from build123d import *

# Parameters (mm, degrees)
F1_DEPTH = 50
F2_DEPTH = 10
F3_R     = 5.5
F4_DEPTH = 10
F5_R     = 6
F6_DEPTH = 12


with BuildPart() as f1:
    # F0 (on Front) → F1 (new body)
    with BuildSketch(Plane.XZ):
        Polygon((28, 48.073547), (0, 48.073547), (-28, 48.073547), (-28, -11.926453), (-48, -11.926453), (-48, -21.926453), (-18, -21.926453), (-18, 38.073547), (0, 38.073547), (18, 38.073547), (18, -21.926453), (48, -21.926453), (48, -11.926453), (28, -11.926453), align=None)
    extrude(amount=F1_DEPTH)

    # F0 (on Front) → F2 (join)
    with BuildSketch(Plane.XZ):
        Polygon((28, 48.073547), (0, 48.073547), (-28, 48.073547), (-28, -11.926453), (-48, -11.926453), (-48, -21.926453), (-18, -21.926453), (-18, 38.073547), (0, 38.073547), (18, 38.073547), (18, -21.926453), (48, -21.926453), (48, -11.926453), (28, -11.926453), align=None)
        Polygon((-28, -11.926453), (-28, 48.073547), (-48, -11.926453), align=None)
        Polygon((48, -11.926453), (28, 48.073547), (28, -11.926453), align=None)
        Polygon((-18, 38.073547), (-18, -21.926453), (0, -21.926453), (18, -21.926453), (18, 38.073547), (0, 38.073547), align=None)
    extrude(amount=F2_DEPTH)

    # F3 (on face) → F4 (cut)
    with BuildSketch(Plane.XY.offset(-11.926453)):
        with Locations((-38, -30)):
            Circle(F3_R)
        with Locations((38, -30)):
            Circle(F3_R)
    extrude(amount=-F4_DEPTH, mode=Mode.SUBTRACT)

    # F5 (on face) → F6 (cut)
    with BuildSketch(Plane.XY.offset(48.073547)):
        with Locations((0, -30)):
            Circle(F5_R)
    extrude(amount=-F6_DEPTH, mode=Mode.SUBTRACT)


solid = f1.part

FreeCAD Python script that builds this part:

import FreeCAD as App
import Part
import Sketcher
from FreeCAD import Vector


def add_polygon(sketch, points):
    """Adds a closed chain of lines whose ends are joined by coincident constraints."""
    first, n = sketch.GeometryCount, len(points)
    for a, b in zip(points, points[1:] + points[:1]):
        sketch.addGeometry(Part.LineSegment(App.Vector(*a, 0), App.Vector(*b, 0)), False)
    for i in range(n):
        sketch.addConstraint(Sketcher.Constraint("Coincident", first + i, 2, first + (i + 1) % n, 1))

doc = App.newDocument("Part")
body = doc.addObject("PartDesign::Body", "Body")

# Sketch on XZ plane
sketch1 = doc.addObject("Sketcher::SketchObject", "Sketch")
body.addObject(sketch1)
sketch1.AttachmentSupport = (doc.XZ_Plane, [""])
sketch1.MapMode = "FlatFace"
add_polygon(sketch1, [(28, 48.073547), (-28, 48.073547), (-28, -11.926453), (-48, -11.926453), (-48, -21.926453), (-18, -21.926453), (-18, 38.073547), (18, 38.073547), (18, -21.926453), (48, -21.926453), (48, -11.926453), (28, -11.926453)])  # lines 0-11
sketch1.addConstraint(Sketcher.Constraint("Horizontal", 0))
sketch1.addConstraint(Sketcher.Constraint("Vertical", 1))
sketch1.addConstraint(Sketcher.Constraint("Horizontal", 2))
sketch1.addConstraint(Sketcher.Constraint("Vertical", 3))
sketch1.addConstraint(Sketcher.Constraint("Horizontal", 4))
sketch1.addConstraint(Sketcher.Constraint("Vertical", 5))
sketch1.addConstraint(Sketcher.Constraint("Horizontal", 6))
sketch1.addConstraint(Sketcher.Constraint("Vertical", 7))
sketch1.addConstraint(Sketcher.Constraint("Horizontal", 8))
sketch1.addConstraint(Sketcher.Constraint("Vertical", 9))
sketch1.addConstraint(Sketcher.Constraint("Horizontal", 10))
sketch1.addConstraint(Sketcher.Constraint("Vertical", 11))
sketch1.addConstraint(Sketcher.Constraint("Symmetric", 4, 2, 7, 2, -2))
sketch1.addConstraint(Sketcher.Constraint("Symmetric", 2, 2, 9, 2, -2))
sketch1.addConstraint(Sketcher.Constraint("Equal", 2, 10))
sketch1.addConstraint(Sketcher.Constraint("Equal", 1, 5))
sketch1.addConstraint(Sketcher.Constraint("DistanceX", 0, 2, 0, 1, 56.0))
sketch1.addConstraint(Sketcher.Constraint("DistanceX", 2, 2, 2, 1, 20.0))
sketch1.addConstraint(Sketcher.Constraint("DistanceX", 4, 1, 4, 2, 30.0))
sketch1.addConstraint(Sketcher.Constraint("DistanceY", 1, 2, 1, 1, 60.0))
sketch1.addConstraint(Sketcher.Constraint("DistanceY", 3, 2, 3, 1, 10.0))
sketch1.addConstraint(Sketcher.Constraint("DistanceY", -1, 1, 0, 2, 48.073547))
pad1 = doc.addObject("PartDesign::Pad", "Pad")
body.addObject(pad1)
pad1.Profile = sketch1
pad1.Length = 50

# Sketch on XZ plane
sketch2 = doc.addObject("Sketcher::SketchObject", "Sketch001")
body.addObject(sketch2)
sketch2.AttachmentSupport = (doc.XZ_Plane, [""])
sketch2.MapMode = "FlatFace"
add_polygon(sketch2, [(28, 48.073547), (-28, 48.073547), (-48, -11.926453), (-48, -21.926453), (48, -21.926453), (48, -11.926453)])  # lines 0-5
sketch2.addConstraint(Sketcher.Constraint("Horizontal", 0))
sketch2.addConstraint(Sketcher.Constraint("Vertical", 2))
sketch2.addConstraint(Sketcher.Constraint("Horizontal", 3))
sketch2.addConstraint(Sketcher.Constraint("Vertical", 4))
sketch2.addConstraint(Sketcher.Constraint("Symmetric", 1, 2, 4, 2, -2))
sketch2.addConstraint(Sketcher.Constraint("Equal", 1, 5))
sketch2.addConstraint(Sketcher.Constraint("DistanceX", 0, 2, 0, 1, 56.0))
sketch2.addConstraint(Sketcher.Constraint("DistanceX", 3, 1, 3, 2, 96.0))
sketch2.addConstraint(Sketcher.Constraint("DistanceY", 2, 2, 2, 1, 10.0))
sketch2.addConstraint(Sketcher.Constraint("DistanceY", 1, 2, 0, 2, 60.0))
sketch2.addConstraint(Sketcher.Constraint("DistanceY", -1, 1, 0, 2, 48.073547))
pad2 = doc.addObject("PartDesign::Pad", "Pad001")
body.addObject(pad2)
pad2.Profile = sketch2
pad2.Length = 10

# Sketch on XY plane
sketch3 = doc.addObject("Sketcher::SketchObject", "Sketch002")
body.addObject(sketch3)
sketch3.AttachmentSupport = (doc.XY_Plane, [""])
sketch3.MapMode = "FlatFace"
sketch3.AttachmentOffset = App.Placement(Vector(0, 0, -11.926453), App.Rotation())
sketch3.addGeometry(Part.Circle(Vector(-38, -30, 0), Vector(0, 0, 1), 5.5), False)
sketch3.addGeometry(Part.Circle(Vector(38, -30, 0), Vector(0, 0, 1), 5.5), False)
sketch3.addConstraint(Sketcher.Constraint("Equal", 0, 1))
sketch3.addConstraint(Sketcher.Constraint("Symmetric", 0, 3, 1, 3, -2))
sketch3.addConstraint(Sketcher.Constraint("Diameter", 0, 11.0))
sketch3.addConstraint(Sketcher.Constraint("DistanceX", 0, 3, -1, 1, 38.0))
sketch3.addConstraint(Sketcher.Constraint("DistanceY", 0, 3, -1, 1, 30.0))
pocket1 = doc.addObject("PartDesign::Pocket", "Pocket")
body.addObject(pocket1)
pocket1.Profile = sketch3
pocket1.Length = 10

# Sketch on XY plane
sketch4 = doc.addObject("Sketcher::SketchObject", "Sketch003")
body.addObject(sketch4)
sketch4.AttachmentSupport = (doc.XY_Plane, [""])
sketch4.MapMode = "FlatFace"
sketch4.AttachmentOffset = App.Placement(Vector(0, 0, 48.073547), App.Rotation())
sketch4.addGeometry(Part.Circle(Vector(0, -30, 0), Vector(0, 0, 1), 6), False)
sketch4.addConstraint(Sketcher.Constraint("PointOnObject", 0, 3, -2))
sketch4.addConstraint(Sketcher.Constraint("Diameter", 0, 12.0))
sketch4.addConstraint(Sketcher.Constraint("DistanceY", 0, 3, -1, 1, 30.0))
pocket2 = doc.addObject("PartDesign::Pocket", "Pocket001")
body.addObject(pocket2)
pocket2.Profile = sketch4
pocket2.Length = 12

doc.recompute()
